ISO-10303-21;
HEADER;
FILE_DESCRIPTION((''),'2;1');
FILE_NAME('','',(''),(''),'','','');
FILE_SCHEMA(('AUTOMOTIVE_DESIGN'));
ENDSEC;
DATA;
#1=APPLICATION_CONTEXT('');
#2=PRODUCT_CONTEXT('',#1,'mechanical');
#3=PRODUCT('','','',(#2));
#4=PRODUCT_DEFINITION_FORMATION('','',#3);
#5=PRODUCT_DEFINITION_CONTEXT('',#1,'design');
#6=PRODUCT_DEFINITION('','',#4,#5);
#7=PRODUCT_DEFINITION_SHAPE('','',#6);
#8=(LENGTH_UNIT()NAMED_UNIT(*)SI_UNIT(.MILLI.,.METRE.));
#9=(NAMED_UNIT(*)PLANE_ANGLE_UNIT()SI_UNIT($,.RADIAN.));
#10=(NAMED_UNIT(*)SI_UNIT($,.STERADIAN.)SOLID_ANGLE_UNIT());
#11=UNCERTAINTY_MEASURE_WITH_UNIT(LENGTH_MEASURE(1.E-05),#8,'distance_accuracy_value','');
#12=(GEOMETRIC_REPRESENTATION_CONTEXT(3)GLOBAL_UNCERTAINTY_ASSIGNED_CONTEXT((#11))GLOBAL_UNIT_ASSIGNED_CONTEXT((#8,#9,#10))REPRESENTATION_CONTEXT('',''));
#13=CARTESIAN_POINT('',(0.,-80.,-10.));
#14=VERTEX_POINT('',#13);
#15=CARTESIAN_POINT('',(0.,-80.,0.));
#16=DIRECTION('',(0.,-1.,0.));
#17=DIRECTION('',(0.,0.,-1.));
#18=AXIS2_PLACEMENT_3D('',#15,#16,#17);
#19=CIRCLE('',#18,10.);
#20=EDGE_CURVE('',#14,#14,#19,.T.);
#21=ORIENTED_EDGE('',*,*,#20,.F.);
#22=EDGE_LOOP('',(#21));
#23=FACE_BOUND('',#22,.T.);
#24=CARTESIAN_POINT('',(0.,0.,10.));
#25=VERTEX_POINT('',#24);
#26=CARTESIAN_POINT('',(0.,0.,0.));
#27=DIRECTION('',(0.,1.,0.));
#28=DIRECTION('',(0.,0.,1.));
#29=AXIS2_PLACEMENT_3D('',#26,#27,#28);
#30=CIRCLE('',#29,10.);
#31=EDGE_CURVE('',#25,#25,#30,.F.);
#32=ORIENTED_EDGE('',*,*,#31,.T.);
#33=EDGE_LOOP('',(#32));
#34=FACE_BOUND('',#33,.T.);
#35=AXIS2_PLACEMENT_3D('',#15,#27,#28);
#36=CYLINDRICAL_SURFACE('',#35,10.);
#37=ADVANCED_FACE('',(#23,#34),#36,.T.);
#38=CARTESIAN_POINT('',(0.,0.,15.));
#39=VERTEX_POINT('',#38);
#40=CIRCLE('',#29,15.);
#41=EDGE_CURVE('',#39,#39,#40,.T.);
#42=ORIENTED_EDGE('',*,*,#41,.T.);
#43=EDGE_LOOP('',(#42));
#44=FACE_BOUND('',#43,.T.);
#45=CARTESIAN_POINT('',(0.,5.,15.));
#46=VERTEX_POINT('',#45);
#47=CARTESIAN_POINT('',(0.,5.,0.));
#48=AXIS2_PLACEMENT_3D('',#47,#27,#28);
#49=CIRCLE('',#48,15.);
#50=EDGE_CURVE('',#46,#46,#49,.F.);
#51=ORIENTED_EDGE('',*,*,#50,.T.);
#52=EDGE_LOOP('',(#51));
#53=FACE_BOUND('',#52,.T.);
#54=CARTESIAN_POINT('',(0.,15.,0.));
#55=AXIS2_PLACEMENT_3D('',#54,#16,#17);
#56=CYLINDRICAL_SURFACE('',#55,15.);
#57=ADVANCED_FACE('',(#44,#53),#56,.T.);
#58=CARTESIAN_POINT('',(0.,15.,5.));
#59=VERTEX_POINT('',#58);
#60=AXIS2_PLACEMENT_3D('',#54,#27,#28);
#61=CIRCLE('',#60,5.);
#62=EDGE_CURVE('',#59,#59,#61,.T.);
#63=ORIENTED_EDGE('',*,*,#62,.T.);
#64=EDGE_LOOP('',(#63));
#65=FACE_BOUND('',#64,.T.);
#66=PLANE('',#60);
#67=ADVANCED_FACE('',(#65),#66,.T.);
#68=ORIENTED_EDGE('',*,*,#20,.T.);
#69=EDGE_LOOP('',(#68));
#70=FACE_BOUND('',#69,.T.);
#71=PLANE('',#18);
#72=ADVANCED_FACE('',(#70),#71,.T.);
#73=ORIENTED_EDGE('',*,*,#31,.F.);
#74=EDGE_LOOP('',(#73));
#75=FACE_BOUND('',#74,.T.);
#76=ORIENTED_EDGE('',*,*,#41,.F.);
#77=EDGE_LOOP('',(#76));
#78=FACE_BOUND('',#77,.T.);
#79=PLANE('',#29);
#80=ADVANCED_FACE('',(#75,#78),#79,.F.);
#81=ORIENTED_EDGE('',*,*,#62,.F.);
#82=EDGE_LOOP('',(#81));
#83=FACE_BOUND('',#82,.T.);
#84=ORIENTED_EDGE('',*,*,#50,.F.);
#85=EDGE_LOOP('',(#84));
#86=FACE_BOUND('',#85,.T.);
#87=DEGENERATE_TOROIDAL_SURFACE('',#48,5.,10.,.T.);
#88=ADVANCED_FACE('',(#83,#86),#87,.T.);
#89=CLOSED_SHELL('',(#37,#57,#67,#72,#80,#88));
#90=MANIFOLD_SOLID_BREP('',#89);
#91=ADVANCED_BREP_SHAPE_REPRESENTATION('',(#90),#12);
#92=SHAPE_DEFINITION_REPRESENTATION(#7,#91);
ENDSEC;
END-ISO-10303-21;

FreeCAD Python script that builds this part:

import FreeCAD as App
import Part
import Sketcher
from FreeCAD import Vector


def edges_at(feature, points):
    """Names of the edges that pass closest to the given points."""
    edges = feature.Shape.Edges
    near = lambda p: min(range(len(edges)), key=lambda i: edges[i].distToShape(Part.Vertex(*p))[0])
    return sorted({f"Edge{near(p) + 1}" for p in points})

doc = App.newDocument("Part")
body = doc.addObject("PartDesign::Body", "Body")

sketch1 = body.newObject("Sketcher::SketchObject", "Sketch")
sketch1.AttachmentSupport = (doc.getObject("XZ_Plane"), [""])
sketch1.MapMode = "FlatFace"
sketch1.addGeometry(Part.Circle(Vector(0, 0, 0), Vector(0, 0, 1), 15), False)
sketch1.addConstraint([
    Sketcher.Constraint("Coincident", 0, 3, -1, 1),
    Sketcher.Constraint("Diameter", 0, 30.0),
])
pad1 = body.newObject("PartDesign::Pad", "Pad")
pad1.Profile = sketch1
pad1.Length = 15
pad1.Reversed = True
doc.recompute()

fillet = body.newObject("PartDesign::Fillet", "Fillet")
fillet.Base = (pad1, edges_at(pad1, [(-15, 15, 0)]))
fillet.Radius = 10

sketch2 = body.newObject("Sketcher::SketchObject", "Sketch001")
sketch2.AttachmentSupport = (doc.getObject("XZ_Plane"), [""])
sketch2.MapMode = "FlatFace"
sketch2.addGeometry(Part.Circle(Vector(0, 0, 0), Vector(0, 0, 1), 10), False)
sketch2.addConstraint([
    Sketcher.Constraint("Coincident", 0, 3, -1, 1),
    Sketcher.Constraint("Diameter", 0, 20.0),
])
pad2 = body.newObject("PartDesign::Pad", "Pad001")
pad2.Profile = sketch2
pad2.Length = 80

doc.recompute()
